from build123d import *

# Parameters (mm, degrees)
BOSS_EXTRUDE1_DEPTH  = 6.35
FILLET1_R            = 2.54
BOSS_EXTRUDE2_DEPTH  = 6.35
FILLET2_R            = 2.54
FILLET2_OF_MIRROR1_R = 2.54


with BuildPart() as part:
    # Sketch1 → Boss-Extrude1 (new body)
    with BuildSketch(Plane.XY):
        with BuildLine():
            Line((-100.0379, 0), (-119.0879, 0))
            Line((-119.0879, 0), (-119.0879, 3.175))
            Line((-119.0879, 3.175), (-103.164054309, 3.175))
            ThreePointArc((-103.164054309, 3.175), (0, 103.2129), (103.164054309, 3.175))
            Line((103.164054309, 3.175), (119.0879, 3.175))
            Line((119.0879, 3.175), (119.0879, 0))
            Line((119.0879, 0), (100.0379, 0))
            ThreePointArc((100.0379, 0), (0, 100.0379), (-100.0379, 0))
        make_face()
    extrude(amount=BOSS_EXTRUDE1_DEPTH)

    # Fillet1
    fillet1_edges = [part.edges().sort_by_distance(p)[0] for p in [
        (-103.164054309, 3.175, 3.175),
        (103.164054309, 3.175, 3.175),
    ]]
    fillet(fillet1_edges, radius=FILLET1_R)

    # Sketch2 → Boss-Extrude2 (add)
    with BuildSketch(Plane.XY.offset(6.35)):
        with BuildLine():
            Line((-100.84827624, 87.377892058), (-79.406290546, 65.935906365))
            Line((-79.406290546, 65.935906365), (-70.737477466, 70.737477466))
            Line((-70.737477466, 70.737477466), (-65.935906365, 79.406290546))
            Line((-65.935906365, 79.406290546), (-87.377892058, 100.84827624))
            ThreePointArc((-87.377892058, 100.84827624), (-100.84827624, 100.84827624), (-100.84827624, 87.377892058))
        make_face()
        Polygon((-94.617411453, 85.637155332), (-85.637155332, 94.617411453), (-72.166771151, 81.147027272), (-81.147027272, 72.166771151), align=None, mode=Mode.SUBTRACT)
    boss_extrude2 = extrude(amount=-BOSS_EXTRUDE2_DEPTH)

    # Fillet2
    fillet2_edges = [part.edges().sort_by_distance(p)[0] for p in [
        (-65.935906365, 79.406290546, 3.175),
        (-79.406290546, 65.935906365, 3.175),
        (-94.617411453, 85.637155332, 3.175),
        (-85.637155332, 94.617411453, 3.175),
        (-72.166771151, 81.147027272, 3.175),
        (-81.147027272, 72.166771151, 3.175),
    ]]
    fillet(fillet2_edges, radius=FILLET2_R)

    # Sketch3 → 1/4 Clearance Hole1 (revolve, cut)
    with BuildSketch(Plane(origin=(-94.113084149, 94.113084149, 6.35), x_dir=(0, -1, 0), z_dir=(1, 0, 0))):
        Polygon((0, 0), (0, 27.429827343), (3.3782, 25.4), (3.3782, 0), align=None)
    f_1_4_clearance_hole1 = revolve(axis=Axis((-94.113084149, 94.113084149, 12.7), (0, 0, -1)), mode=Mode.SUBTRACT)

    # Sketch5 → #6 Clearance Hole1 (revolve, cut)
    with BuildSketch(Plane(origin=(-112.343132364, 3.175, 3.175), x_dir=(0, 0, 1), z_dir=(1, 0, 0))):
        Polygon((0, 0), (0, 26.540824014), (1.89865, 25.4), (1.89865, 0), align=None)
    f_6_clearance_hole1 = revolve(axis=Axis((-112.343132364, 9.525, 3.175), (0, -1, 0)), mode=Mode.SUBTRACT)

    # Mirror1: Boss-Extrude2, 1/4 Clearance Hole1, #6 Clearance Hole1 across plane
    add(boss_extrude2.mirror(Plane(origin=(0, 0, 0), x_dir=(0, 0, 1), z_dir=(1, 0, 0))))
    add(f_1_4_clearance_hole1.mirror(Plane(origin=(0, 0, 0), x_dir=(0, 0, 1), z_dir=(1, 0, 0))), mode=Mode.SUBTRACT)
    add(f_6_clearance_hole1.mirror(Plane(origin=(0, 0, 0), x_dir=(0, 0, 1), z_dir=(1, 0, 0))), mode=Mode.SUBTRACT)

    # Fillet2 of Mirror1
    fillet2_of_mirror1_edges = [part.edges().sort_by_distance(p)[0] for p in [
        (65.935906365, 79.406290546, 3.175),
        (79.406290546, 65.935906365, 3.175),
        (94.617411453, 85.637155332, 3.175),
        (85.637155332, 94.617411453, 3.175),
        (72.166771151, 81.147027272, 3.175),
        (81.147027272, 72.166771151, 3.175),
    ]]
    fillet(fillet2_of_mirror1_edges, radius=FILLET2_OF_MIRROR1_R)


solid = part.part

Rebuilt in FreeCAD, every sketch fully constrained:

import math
import FreeCAD as App
import Part
import Sketcher

V = App.Vector
Q = App.Units.Quantity


def edges_at(feature, points):
    """Names of the edges that pass closest to the given points."""
    edges = feature.Shape.Edges
    near = lambda p: min(range(len(edges)), key=lambda i: edges[i].distToShape(Part.Vertex(*p))[0])
    return sorted({f"Edge{near(p) + 1}" for p in points})

doc = App.newDocument("Part")
body = doc.addObject("PartDesign::Body", "Body")

# Sketch on XY plane
sketch1 = doc.addObject("Sketcher::SketchObject", "Sketch")
body.addObject(sketch1)
sketch1.AttachmentSupport = (doc.XY_Plane, [""])
sketch1.MapMode = "FlatFace"
sketch1.addGeometry([
    Part.LineSegment(V(-119.0879, 0, 0), V(-100.0379, 0, 0)),  # 0
    Part.ArcOfCircle(Part.Circle(V(0, 0, 0), V(0, 0, 1), 100.0379), math.radians(0), math.radians(180)),  # 1
    Part.LineSegment(V(100.0379, 0, 0), V(119.0879, 0, 0)),  # 2
    Part.LineSegment(V(119.0879, 0, 0), V(119.0879, 3.175, 0)),  # 3
    Part.LineSegment(V(119.0879, 3.175, 0), V(103.164054, 3.175, 0)),  # 4
    Part.ArcOfCircle(Part.Circle(V(0, 0, 0), V(0, 0, 1), 103.2129), math.radians(1.762791), math.radians(178.237209)),  # 5
    Part.LineSegment(V(-103.164054, 3.175, 0), V(-119.0879, 3.175, 0)),  # 6
    Part.LineSegment(V(-119.0879, 3.175, 0), V(-119.0879, 0, 0)),  # 7
], False)
sketch1.addConstraint([
    Sketcher.Constraint("Coincident", 0, 2, 1, 2),
    Sketcher.Constraint("Coincident", 1, 1, 2, 1),
    Sketcher.Constraint("Coincident", 2, 2, 3, 1),
    Sketcher.Constraint("Coincident", 3, 2, 4, 1),
    Sketcher.Constraint("Coincident", 4, 2, 5, 1),
    Sketcher.Constraint("Coincident", 5, 2, 6, 1),
    Sketcher.Constraint("Coincident", 6, 2, 7, 1),
    Sketcher.Constraint("Coincident", 7, 2, 0, 1),
    Sketcher.Constraint("Horizontal", 0),
    Sketcher.Constraint("Horizontal", 2),
    Sketcher.Constraint("Vertical", 3),
    Sketcher.Constraint("Horizontal", 4),
    Sketcher.Constraint("Horizontal", 6),
    Sketcher.Constraint("Vertical", 7),
    Sketcher.Constraint("Coincident", 1, 3, -1, 1),
    Sketcher.Constraint("Coincident", 5, 3, -1, 1),
    Sketcher.Constraint("Symmetric", 2, 2, 7, 2, -1, 1),
    Sketcher.Constraint("PointOnObject", 0, 2, -1),
    Sketcher.Constraint("Horizontal", 4, 2, 5, 2),
    Sketcher.Constraint("DistanceX", 0, 1, 0, 2, Q("0.75 in")),
    Sketcher.Constraint("Radius", 1, Q("3.9385 in")),
    Sketcher.Constraint("Radius", 5, Q("4.0635 in")),
    Sketcher.Constraint("DistanceY", 3, 1, 3, 2, Q("0.125 in")),
])
pad1 = doc.addObject("PartDesign::Pad", "Pad")
body.addObject(pad1)
pad1.Profile = sketch1
pad1.Length = Q("0.25 in")
doc.recompute()

fillet = doc.addObject("PartDesign::Fillet", "Fillet")
body.addObject(fillet)
fillet.Base = (pad1, edges_at(pad1, [(-103.164, 3.175, 3.175), (103.164, 3.175, 3.175)]))
fillet.Radius = Q("0.1 in")

# Sketch on XY plane
sketch2 = doc.addObject("Sketcher::SketchObject", "Sketch001")
body.addObject(sketch2)
sketch2.AttachmentSupport = (doc.XY_Plane, [""])
sketch2.MapMode = "FlatFace"
sketch2.AttachmentOffset = App.Placement(V(0, 0, 0.25 * 25.4), App.Rotation())
sketch2.addGeometry([
    Part.LineSegment(V(-100.848276, 87.377892, 0), V(-79.406291, 65.935906, 0)),  # 0
    Part.LineSegment(V(-79.406291, 65.935906, 0), V(-70.737477, 70.737477, 0)),  # 1
    Part.LineSegment(V(-70.737477, 70.737477, 0), V(-65.935906, 79.406291, 0)),  # 2
    Part.LineSegment(V(-65.935906, 79.406291, 0), V(-87.377892, 100.848276, 0)),  # 3
    Part.ArcOfCircle(Part.Circle(V(-94.113084, 94.113084, 0), V(0, 0, 1), 9.525), math.radians(45), math.radians(225)),  # 4
    Part.LineSegment(V(-81.147027, 72.166771, 0), V(-94.617411, 85.637155, 0)),  # 5
    Part.LineSegment(V(-94.617411, 85.637155, 0), V(-85.637155, 94.617411, 0)),  # 6
    Part.LineSegment(V(-85.637155, 94.617411, 0), V(-72.166771, 81.147027, 0)),  # 7
    Part.LineSegment(V(-72.166771, 81.147027, 0), V(-81.147027, 72.166771, 0)),  # 8
], False)
sketch2.addConstraint([
    Sketcher.Constraint("Coincident", 0, 2, 1, 1),
    Sketcher.Constraint("Coincident", 1, 2, 2, 1),
    Sketcher.Constraint("Coincident", 2, 2, 3, 1),
    Sketcher.Constraint("Tangent", 3, 2, 4, 1),
    Sketcher.Constraint("Tangent", 4, 2, 0, 1),
    Sketcher.Constraint("Coincident", 5, 2, 6, 1),
    Sketcher.Constraint("Coincident", 6, 2, 7, 1),
    Sketcher.Constraint("Coincident", 7, 2, 8, 1),
    Sketcher.Constraint("Coincident", 8, 2, 5, 1),
    Sketcher.Constraint("Parallel", 0, 3),
    Sketcher.Constraint("Parallel", 3, 5),
    Sketcher.Constraint("Perpendicular", 5, 6),
    Sketcher.Constraint("Perpendicular", 6, 7),
    Sketcher.Constraint("Perpendicular", 7, 8),
    Sketcher.Constraint("Equal", 1, 2),
    Sketcher.Constraint("Equal", 0, 3),
    Sketcher.Constraint("Angle", 0, Q("-45 deg")),
    Sketcher.Constraint("Radius", 4, Q("0.375 in")),
    Sketcher.Constraint("Distance", 6, Q("0.5 in")),
    Sketcher.Constraint("Distance", 5, Q("0.75 in")),
    Sketcher.Constraint("DistanceY", 1, 2, 3, 2, Q("30.110799 mm")),
    Sketcher.Constraint("DistanceX", 3, 2, 0, 2, Q("7.971602 mm")),
    Sketcher.Constraint("DistanceX", 0, 2, -1, 1, Q("79.406291 mm")),
    Sketcher.Constraint("DistanceY", -1, 1, 2, 2, Q("79.406291 mm")),
    Sketcher.Constraint("DistanceX", 5, 2, -1, 1, Q("94.617411 mm")),
    Sketcher.Constraint("DistanceY", -1, 1, 6, 2, Q("94.617411 mm")),
])
pad2 = doc.addObject("PartDesign::Pad", "Pad001")
body.addObject(pad2)
pad2.Profile = sketch2
pad2.Length = Q("0.25 in")
pad2.Reversed = True
doc.recompute()

fillet2 = doc.addObject("PartDesign::Fillet", "Fillet001")
body.addObject(fillet2)
fillet2.Base = (pad2, edges_at(pad2, [
    (-65.936, 79.406, 3.175),
    (-79.406, 65.936, 3.175),
    (-94.617, 85.637, 3.175),
    (-85.637, 94.617, 3.175),
    (-72.167, 81.147, 3.175),
    (-81.147, 72.167, 3.175),
]))
fillet2.Radius = Q("0.1 in")

# Sketch on YZ plane
sketch3 = doc.addObject("Sketcher::SketchObject", "Sketch002")
body.addObject(sketch3)
sketch3.AttachmentSupport = (doc.YZ_Plane, [""])
sketch3.MapMode = "FlatFace"
sketch3.AttachmentOffset = App.Placement(V(0, 0, -94.113084), App.Rotation())
sketch3.addGeometry([
    Part.LineSegment(V(94.113084, -21.079827, 0), V(94.113084, 6.35, 0)),
    Part.LineSegment(V(94.113084, 6.35, 0), V(90.734884, 6.35, 0)),
    Part.LineSegment(V(90.734884, 6.35, 0), V(90.734884, -19.05, 0)),
    Part.LineSegment(V(90.734884, -19.05, 0), V(94.113084, -21.079827, 0)),
], False)
sketch3.addGeometry(Part.LineSegment(V(94.113084, 6.35, 0), V(94.113084, -21.079827, 0)), True)  # axis
sketch3.addConstraint([
    Sketcher.Constraint("Coincident", 0, 2, 1, 1),
    Sketcher.Constraint("Coincident", 1, 2, 2, 1),
    Sketcher.Constraint("Coincident", 2, 2, 3, 1),
    Sketcher.Constraint("Coincident", 3, 2, 0, 1),
    Sketcher.Constraint("Vertical", 0),
    Sketcher.Constraint("Horizontal", 1),
    Sketcher.Constraint("Vertical", 2),
    Sketcher.Constraint("Vertical", 4),
    Sketcher.Constraint("Coincident", 4, 1, 0, 2),
    Sketcher.Constraint("Equal", 0, 4),
    Sketcher.Constraint("DistanceY", 2, 2, 2, 1, Q("1 in")),
    Sketcher.Constraint("Angle", 3, Q("-31 deg")),
    Sketcher.Constraint("DistanceX", 1, 2, 1, 1, Q("0.133 in")),
    Sketcher.Constraint("DistanceY", -1, 1, 0, 2, Q("0.25 in")),
    Sketcher.Constraint("DistanceX", -1, 1, 0, 2, Q("94.113084 mm")),
])
groove = doc.addObject("PartDesign::Groove", "Groove")
body.addObject(groove)
groove.Profile = sketch3
groove.ReferenceAxis = (sketch3, ["Axis0"])
groove.Angle = 360

# Sketch on YZ plane
sketch4 = doc.addObject("Sketcher::SketchObject", "Sketch003")
body.addObject(sketch4)
sketch4.AttachmentSupport = (doc.YZ_Plane, [""])
sketch4.MapMode = "FlatFace"
sketch4.AttachmentOffset = App.Placement(V(0, 0, -112.343132), App.Rotation())
sketch4.addGeometry([
    Part.LineSegment(V(-23.365824, 3.175, 0), V(3.175, 3.175, 0)),
    Part.LineSegment(V(3.175, 3.175, 0), V(3.175, 5.07365, 0)),
    Part.LineSegment(V(3.175, 5.07365, 0), V(-22.225, 5.07365, 0)),
    Part.LineSegment(V(-22.225, 5.07365, 0), V(-23.365824, 3.175, 0)),
], False)
sketch4.addGeometry(Part.LineSegment(V(3.175, 3.175, 0), V(-23.365824, 3.175, 0)), True)  # axis
sketch4.addConstraint([
    Sketcher.Constraint("Coincident", 0, 2, 1, 1),
    Sketcher.Constraint("Coincident", 1, 2, 2, 1),
    Sketcher.Constraint("Coincident", 2, 2, 3, 1),
    Sketcher.Constraint("Coincident", 3, 2, 0, 1),
    Sketcher.Constraint("Horizontal", 0),
    Sketcher.Constraint("Vertical", 1),
    Sketcher.Constraint("Horizontal", 2),
    Sketcher.Constraint("Horizontal", 4),
    Sketcher.Constraint("Coincident", 4, 1, 0, 2),
    Sketcher.Constraint("Equal", 0, 4),
    Sketcher.Constraint("DistanceX", 2, 2, 2, 1, Q("1 in")),
    Sketcher.Constraint("Angle", 3, Q("-121 deg")),
    Sketcher.Constraint("DistanceX", -1, 1, 0, 2, Q("0.125 in")),
    Sketcher.Constraint("DistanceY", -1, 1, 0, 2, Q("0.125 in")),
    Sketcher.Constraint("DistanceY", 1, 1, 1, 2, Q("1.89865 mm")),
])
groove2 = doc.addObject("PartDesign::Groove", "Groove001")
body.addObject(groove2)
groove2.Profile = sketch4
groove2.ReferenceAxis = (sketch4, ["Axis0"])
groove2.Angle = 360
doc.recompute()

mirrored = doc.addObject("PartDesign::Mirrored", "Mirrored")
body.addObject(mirrored)
mirrored.Originals = [pad2, groove, groove2]
mirrored.MirrorPlane = (doc.YZ_Plane, [""])
body.Tip = mirrored
doc.recompute()

fillet3 = doc.addObject("PartDesign::Fillet", "Fillet002")
body.addObject(fillet3)
fillet3.Base = (mirrored, edges_at(mirrored, [
    (65.936, 79.406, 3.175),
    (79.406, 65.936, 3.175),
    (94.617, 85.637, 3.175),
    (85.637, 94.617, 3.175),
    (72.167, 81.147, 3.175),
    (81.147, 72.167, 3.175),
]))
fillet3.Radius = Q("0.1 in")

doc.recompute()
